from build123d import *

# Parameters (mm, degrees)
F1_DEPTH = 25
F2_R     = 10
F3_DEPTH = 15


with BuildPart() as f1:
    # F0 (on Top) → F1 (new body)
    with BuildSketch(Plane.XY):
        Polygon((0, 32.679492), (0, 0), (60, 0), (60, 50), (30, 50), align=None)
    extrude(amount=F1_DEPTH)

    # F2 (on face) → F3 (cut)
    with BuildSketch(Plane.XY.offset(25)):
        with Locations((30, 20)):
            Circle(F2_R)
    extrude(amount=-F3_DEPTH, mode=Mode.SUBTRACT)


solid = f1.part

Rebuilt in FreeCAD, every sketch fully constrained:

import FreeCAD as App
import Part
import Sketcher
Q = App.Units.Quantity


def add_polygon(sketch, points):
    """Adds a closed chain of lines whose ends are joined by coincident constraints."""
    first, n = sketch.GeometryCount, len(points)
    for a, b in zip(points, points[1:] + points[:1]):
        sketch.addGeometry(Part.LineSegment(App.Vector(*a, 0), App.Vector(*b, 0)), False)
    for i in range(n):
        sketch.addConstraint(Sketcher.Constraint("Coincident", first + i, 2, first + (i + 1) % n, 1))

doc = App.newDocument("Part")
body = doc.addObject("PartDesign::Body", "Body")

# Sketch on XY plane
sketch1 = body.newObject("Sketcher::SketchObject", "Sketch")
sketch1.AttachmentSupport = (doc.getObject("XY_Plane"), [""])
sketch1.MapMode = "FlatFace"
add_polygon(sketch1, [(0, 33), (0, 0), (60, 0), (60, 50), (30, 50)])  # lines 0-4
sketch1.addConstraint([
    Sketcher.Constraint("Vertical", 0),
    Sketcher.Constraint("Horizontal", 1),
    Sketcher.Constraint("Vertical", 2),
    Sketcher.Constraint("Horizontal", 3),
    Sketcher.Constraint("Coincident", 0, 2, -1, 1),
    Sketcher.Constraint("DistanceX", 1, 1, 1, 2, 60.0),
    Sketcher.Constraint("DistanceX", 3, 2, 3, 1, 30.0),
    Sketcher.Constraint("DistanceY", 2, 1, 2, 2, 50.0),
    Sketcher.Constraint("Angle", 4, Q("-150 deg")),
])
pad1 = body.newObject("PartDesign::Pad", "Pad")
pad1.Profile = sketch1
pad1.Length = 25

# Sketch on XY plane
sketch2 = body.newObject("Sketcher::SketchObject", "Sketch001")
sketch2.AttachmentSupport = (doc.getObject("XY_Plane"), [""])
sketch2.MapMode = "FlatFace"
sketch2.AttachmentOffset = App.Placement(App.Vector(0, 0, 25), App.Rotation())
sketch2.addGeometry(Part.Circle(App.Vector(30, 20, 0), App.Vector(0, 0, 1), 10), False)
sketch2.addConstraint([
    Sketcher.Constraint("Diameter", 0, 20.0),
    Sketcher.Constraint("DistanceX", -1, 1, 0, 3, 30.0),
    Sketcher.Constraint("DistanceY", -1, 1, 0, 3, 20.0),
])
pocket1 = body.newObject("PartDesign::Pocket", "Pocket")
pocket1.Profile = sketch2
pocket1.Length = 15

doc.recompute()
